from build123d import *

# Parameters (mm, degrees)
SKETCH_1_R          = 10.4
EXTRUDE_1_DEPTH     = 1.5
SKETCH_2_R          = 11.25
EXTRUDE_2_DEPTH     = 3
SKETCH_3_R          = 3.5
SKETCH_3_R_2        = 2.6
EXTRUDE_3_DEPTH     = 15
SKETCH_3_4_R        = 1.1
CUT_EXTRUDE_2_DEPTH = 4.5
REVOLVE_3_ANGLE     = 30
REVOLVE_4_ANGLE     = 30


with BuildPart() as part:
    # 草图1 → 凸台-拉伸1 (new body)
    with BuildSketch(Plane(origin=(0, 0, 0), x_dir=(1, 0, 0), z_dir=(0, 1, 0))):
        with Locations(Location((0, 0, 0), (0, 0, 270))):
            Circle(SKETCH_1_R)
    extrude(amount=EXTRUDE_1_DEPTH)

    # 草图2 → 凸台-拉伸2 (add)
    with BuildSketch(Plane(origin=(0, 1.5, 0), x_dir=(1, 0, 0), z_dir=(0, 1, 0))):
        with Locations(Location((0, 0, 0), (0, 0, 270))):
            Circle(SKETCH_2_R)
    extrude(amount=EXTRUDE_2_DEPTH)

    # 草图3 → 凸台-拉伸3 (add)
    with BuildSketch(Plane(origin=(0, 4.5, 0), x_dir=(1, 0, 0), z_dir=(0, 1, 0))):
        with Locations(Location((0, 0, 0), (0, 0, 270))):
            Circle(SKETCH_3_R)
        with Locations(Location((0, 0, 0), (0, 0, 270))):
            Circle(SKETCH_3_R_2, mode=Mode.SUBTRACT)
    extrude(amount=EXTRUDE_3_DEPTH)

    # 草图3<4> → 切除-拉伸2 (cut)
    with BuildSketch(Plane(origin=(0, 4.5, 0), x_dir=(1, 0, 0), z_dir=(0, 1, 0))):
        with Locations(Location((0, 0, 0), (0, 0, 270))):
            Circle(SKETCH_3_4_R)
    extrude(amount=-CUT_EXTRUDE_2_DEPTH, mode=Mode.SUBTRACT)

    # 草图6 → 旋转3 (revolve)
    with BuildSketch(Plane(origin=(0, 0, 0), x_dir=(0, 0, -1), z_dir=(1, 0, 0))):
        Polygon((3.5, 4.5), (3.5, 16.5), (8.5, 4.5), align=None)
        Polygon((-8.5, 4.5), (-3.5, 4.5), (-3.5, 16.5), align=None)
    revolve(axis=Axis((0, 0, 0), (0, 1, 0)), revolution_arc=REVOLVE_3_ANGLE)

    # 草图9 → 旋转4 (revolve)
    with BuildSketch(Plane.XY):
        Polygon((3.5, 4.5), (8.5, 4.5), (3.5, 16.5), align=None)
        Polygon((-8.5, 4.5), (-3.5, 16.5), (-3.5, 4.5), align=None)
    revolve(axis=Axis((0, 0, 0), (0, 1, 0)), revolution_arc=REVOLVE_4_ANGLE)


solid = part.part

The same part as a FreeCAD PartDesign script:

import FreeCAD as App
import Part
import Sketcher
from FreeCAD import Vector

doc = App.newDocument("Part")
body = doc.addObject("PartDesign::Body", "Body")

# Sketch on XZ plane
sketch1 = body.newObject("Sketcher::SketchObject", "Sketch")
sketch1.AttachmentSupport = (doc.getObject("XZ_Plane"), [""])
sketch1.MapMode = "FlatFace"
sketch1.addGeometry(Part.Circle(Vector(0, 0, 0), Vector(0, 0, 1), 10), False)
sketch1.addConstraint(Sketcher.Constraint("Coincident", 0, 3, -1, 1))
sketch1.addConstraint(Sketcher.Constraint("Diameter", 0, 20.8))
pad1 = body.newObject("PartDesign::Pad", "Pad")
pad1.Profile = sketch1
pad1.Length = 1.5
pad1.Reversed = True

# Sketch on XZ plane
sketch2 = body.newObject("Sketcher::SketchObject", "Sketch001")
sketch2.AttachmentSupport = (doc.getObject("XZ_Plane"), [""])
sketch2.MapMode = "FlatFace"
sketch2.AttachmentOffset = App.Placement(Vector(0, 0, -1.5), App.Rotation())
sketch2.addGeometry(Part.Circle(Vector(0, 0, 0), Vector(0, 0, 1), 11), False)
sketch2.addConstraint(Sketcher.Constraint("Coincident", 0, 3, -1, 1))
sketch2.addConstraint(Sketcher.Constraint("Diameter", 0, 22.5))
pad2 = body.newObject("PartDesign::Pad", "Pad001")
pad2.Profile = sketch2
pad2.Length = 3
pad2.Reversed = True

# Sketch on XZ plane
sketch3 = body.newObject("Sketcher::SketchObject", "Sketch002")
sketch3.AttachmentSupport = (doc.getObject("XZ_Plane"), [""])
sketch3.MapMode = "FlatFace"
sketch3.AttachmentOffset = App.Placement(Vector(0, 0, -4.5), App.Rotation())
sketch3.addGeometry(Part.Circle(Vector(0, 0, 0), Vector(0, 0, 1), 3.5), False)
sketch3.addGeometry(Part.Circle(Vector(0, 0, 0), Vector(0, 0, 1), 2.6), False)
sketch3.addConstraint(Sketcher.Constraint("Coincident", 0, 3, -1, 1))
sketch3.addConstraint(Sketcher.Constraint("Coincident", 1, 3, -1, 1))
sketch3.addConstraint(Sketcher.Constraint("Diameter", 0, 7.0))
sketch3.addConstraint(Sketcher.Constraint("Diameter", 1, 5.2))
pad3 = body.newObject("PartDesign::Pad", "Pad002")
pad3.Profile = sketch3
pad3.Length = 15
pad3.Reversed = True

# Sketch on XZ plane
sketch4 = body.newObject("Sketcher::SketchObject", "Sketch003")
sketch4.AttachmentSupport = (doc.getObject("XZ_Plane"), [""])
sketch4.MapMode = "FlatFace"
sketch4.AttachmentOffset = App.Placement(Vector(0, 0, -4.5), App.Rotation())
sketch4.addGeometry(Part.Circle(Vector(0, 0, 0), Vector(0, 0, 1), 1.1), False)
sketch4.addConstraint(Sketcher.Constraint("Coincident", 0, 3, -1, 1))
sketch4.addConstraint(Sketcher.Constraint("Diameter", 0, 2.2))
pocket1 = body.newObject("PartDesign::Pocket", "Pocket")
pocket1.Profile = sketch4
pocket1.Length = 4.5
pocket1.Reversed = True

# Sketch on YZ plane
sketch5 = body.newObject("Sketcher::SketchObject", "Sketch004")
sketch5.AttachmentSupport = (doc.getObject("YZ_Plane"), [""])
sketch5.MapMode = "FlatFace"
sketch5.addGeometry(Part.LineSegment(Vector(16, -4, 0), Vector(4, -4, 0)), False)
sketch5.addGeometry(Part.LineSegment(Vector(4, -4, 0), Vector(4, -8, 0)), False)
sketch5.addGeometry(Part.LineSegment(Vector(4, -8, 0), Vector(16, -4, 0)), False)
sketch5.addGeometry(Part.LineSegment(Vector(4, 8, 0), Vector(4, 4, 0)), False)
sketch5.addGeometry(Part.LineSegment(Vector(4, 4, 0), Vector(16, 4, 0)), False)
sketch5.addGeometry(Part.LineSegment(Vector(16, 4, 0), Vector(4, 8, 0)), False)
sketch5.addConstraint(Sketcher.Constraint("Coincident", 0, 2, 1, 1))
sketch5.addConstraint(Sketcher.Constraint("Coincident", 1, 2, 2, 1))
sketch5.addConstraint(Sketcher.Constraint("Coincident", 2, 2, 0, 1))
sketch5.addConstraint(Sketcher.Constraint("Coincident", 3, 2, 4, 1))
sketch5.addConstraint(Sketcher.Constraint("Coincident", 4, 2, 5, 1))
sketch5.addConstraint(Sketcher.Constraint("Coincident", 5, 2, 3, 1))
sketch5.addConstraint(Sketcher.Constraint("Horizontal", 0))
sketch5.addConstraint(Sketcher.Constraint("Vertical", 1))
sketch5.addConstraint(Sketcher.Constraint("Vertical", 3))
sketch5.addConstraint(Sketcher.Constraint("Horizontal", 4))
sketch5.addConstraint(Sketcher.Constraint("Symmetric", 0, 2, 3, 2, -1))
sketch5.addConstraint(Sketcher.Constraint("Vertical", 2, 2, 4, 2))
sketch5.addConstraint(Sketcher.Constraint("Equal", 1, 3))
sketch5.addConstraint(Sketcher.Constraint("DistanceX", 0, 2, 0, 1, 12.0))
sketch5.addConstraint(Sketcher.Constraint("DistanceY", 1, 2, 1, 1, 5.0))
sketch5.addConstraint(Sketcher.Constraint("DistanceY", 0, 2, 3, 2, 7.0))
sketch5.addConstraint(Sketcher.Constraint("DistanceX", -1, 1, 0, 2, 4.5))
revolution = body.newObject("PartDesign::Revolution", "Revolution")
revolution.Profile = sketch5
revolution.ReferenceAxis = (sketch5, ["H_Axis"])
revolution.Angle = 30

# Sketch on XY plane
sketch6 = body.newObject("Sketcher::SketchObject", "Sketch005")
sketch6.AttachmentSupport = (doc.getObject("XY_Plane"), [""])
sketch6.MapMode = "FlatFace"
sketch6.addGeometry(Part.LineSegment(Vector(4, 4, 0), Vector(8, 4, 0)), False)
sketch6.addGeometry(Part.LineSegment(Vector(8, 4, 0), Vector(4, 16, 0)), False)
sketch6.addGeometry(Part.LineSegment(Vector(4, 16, 0), Vector(4, 4, 0)), False)
sketch6.addGeometry(Part.LineSegment(Vector(-4, 16, 0), Vector(-8, 4, 0)), False)
sketch6.addGeometry(Part.LineSegment(Vector(-8, 4, 0), Vector(-4, 4, 0)), False)
sketch6.addGeometry(Part.LineSegment(Vector(-4, 4, 0), Vector(-4, 16, 0)), False)
sketch6.addConstraint(Sketcher.Constraint("Coincident", 0, 2, 1, 1))
sketch6.addConstraint(Sketcher.Constraint("Coincident", 1, 2, 2, 1))
sketch6.addConstraint(Sketcher.Constraint("Coincident", 2, 2, 0, 1))
sketch6.addConstraint(Sketcher.Constraint("Coincident", 3, 2, 4, 1))
sketch6.addConstraint(Sketcher.Constraint("Coincident", 4, 2, 5, 1))
sketch6.addConstraint(Sketcher.Constraint("Coincident", 5, 2, 3, 1))
sketch6.addConstraint(Sketcher.Constraint("Horizontal", 0))
sketch6.addConstraint(Sketcher.Constraint("Vertical", 2))
sketch6.addConstraint(Sketcher.Constraint("Horizontal", 4))
sketch6.addConstraint(Sketcher.Constraint("Vertical", 5))
sketch6.addConstraint(Sketcher.Constraint("Symmetric", 0, 2, 3, 2, -2))
sketch6.addConstraint(Sketcher.Constraint("Symmetric", 1, 2, 5, 2, -2))
sketch6.addConstraint(Sketcher.Constraint("DistanceX", 0, 1, 0, 2, 5.0))
sketch6.addConstraint(Sketcher.Constraint("DistanceY", 2, 2, 2, 1, 12.0))
sketch6.addConstraint(Sketcher.Constraint("DistanceX", 3, 2, 2, 2, 12.0))
sketch6.addConstraint(Sketcher.Constraint("DistanceY", -1, 1, 0, 2, 4.5))
revolution2 = body.newObject("PartDesign::Revolution", "Revolution001")
revolution2.Profile = sketch6
revolution2.ReferenceAxis = (sketch6, ["V_Axis"])
revolution2.Angle = 30

doc.recompute()
